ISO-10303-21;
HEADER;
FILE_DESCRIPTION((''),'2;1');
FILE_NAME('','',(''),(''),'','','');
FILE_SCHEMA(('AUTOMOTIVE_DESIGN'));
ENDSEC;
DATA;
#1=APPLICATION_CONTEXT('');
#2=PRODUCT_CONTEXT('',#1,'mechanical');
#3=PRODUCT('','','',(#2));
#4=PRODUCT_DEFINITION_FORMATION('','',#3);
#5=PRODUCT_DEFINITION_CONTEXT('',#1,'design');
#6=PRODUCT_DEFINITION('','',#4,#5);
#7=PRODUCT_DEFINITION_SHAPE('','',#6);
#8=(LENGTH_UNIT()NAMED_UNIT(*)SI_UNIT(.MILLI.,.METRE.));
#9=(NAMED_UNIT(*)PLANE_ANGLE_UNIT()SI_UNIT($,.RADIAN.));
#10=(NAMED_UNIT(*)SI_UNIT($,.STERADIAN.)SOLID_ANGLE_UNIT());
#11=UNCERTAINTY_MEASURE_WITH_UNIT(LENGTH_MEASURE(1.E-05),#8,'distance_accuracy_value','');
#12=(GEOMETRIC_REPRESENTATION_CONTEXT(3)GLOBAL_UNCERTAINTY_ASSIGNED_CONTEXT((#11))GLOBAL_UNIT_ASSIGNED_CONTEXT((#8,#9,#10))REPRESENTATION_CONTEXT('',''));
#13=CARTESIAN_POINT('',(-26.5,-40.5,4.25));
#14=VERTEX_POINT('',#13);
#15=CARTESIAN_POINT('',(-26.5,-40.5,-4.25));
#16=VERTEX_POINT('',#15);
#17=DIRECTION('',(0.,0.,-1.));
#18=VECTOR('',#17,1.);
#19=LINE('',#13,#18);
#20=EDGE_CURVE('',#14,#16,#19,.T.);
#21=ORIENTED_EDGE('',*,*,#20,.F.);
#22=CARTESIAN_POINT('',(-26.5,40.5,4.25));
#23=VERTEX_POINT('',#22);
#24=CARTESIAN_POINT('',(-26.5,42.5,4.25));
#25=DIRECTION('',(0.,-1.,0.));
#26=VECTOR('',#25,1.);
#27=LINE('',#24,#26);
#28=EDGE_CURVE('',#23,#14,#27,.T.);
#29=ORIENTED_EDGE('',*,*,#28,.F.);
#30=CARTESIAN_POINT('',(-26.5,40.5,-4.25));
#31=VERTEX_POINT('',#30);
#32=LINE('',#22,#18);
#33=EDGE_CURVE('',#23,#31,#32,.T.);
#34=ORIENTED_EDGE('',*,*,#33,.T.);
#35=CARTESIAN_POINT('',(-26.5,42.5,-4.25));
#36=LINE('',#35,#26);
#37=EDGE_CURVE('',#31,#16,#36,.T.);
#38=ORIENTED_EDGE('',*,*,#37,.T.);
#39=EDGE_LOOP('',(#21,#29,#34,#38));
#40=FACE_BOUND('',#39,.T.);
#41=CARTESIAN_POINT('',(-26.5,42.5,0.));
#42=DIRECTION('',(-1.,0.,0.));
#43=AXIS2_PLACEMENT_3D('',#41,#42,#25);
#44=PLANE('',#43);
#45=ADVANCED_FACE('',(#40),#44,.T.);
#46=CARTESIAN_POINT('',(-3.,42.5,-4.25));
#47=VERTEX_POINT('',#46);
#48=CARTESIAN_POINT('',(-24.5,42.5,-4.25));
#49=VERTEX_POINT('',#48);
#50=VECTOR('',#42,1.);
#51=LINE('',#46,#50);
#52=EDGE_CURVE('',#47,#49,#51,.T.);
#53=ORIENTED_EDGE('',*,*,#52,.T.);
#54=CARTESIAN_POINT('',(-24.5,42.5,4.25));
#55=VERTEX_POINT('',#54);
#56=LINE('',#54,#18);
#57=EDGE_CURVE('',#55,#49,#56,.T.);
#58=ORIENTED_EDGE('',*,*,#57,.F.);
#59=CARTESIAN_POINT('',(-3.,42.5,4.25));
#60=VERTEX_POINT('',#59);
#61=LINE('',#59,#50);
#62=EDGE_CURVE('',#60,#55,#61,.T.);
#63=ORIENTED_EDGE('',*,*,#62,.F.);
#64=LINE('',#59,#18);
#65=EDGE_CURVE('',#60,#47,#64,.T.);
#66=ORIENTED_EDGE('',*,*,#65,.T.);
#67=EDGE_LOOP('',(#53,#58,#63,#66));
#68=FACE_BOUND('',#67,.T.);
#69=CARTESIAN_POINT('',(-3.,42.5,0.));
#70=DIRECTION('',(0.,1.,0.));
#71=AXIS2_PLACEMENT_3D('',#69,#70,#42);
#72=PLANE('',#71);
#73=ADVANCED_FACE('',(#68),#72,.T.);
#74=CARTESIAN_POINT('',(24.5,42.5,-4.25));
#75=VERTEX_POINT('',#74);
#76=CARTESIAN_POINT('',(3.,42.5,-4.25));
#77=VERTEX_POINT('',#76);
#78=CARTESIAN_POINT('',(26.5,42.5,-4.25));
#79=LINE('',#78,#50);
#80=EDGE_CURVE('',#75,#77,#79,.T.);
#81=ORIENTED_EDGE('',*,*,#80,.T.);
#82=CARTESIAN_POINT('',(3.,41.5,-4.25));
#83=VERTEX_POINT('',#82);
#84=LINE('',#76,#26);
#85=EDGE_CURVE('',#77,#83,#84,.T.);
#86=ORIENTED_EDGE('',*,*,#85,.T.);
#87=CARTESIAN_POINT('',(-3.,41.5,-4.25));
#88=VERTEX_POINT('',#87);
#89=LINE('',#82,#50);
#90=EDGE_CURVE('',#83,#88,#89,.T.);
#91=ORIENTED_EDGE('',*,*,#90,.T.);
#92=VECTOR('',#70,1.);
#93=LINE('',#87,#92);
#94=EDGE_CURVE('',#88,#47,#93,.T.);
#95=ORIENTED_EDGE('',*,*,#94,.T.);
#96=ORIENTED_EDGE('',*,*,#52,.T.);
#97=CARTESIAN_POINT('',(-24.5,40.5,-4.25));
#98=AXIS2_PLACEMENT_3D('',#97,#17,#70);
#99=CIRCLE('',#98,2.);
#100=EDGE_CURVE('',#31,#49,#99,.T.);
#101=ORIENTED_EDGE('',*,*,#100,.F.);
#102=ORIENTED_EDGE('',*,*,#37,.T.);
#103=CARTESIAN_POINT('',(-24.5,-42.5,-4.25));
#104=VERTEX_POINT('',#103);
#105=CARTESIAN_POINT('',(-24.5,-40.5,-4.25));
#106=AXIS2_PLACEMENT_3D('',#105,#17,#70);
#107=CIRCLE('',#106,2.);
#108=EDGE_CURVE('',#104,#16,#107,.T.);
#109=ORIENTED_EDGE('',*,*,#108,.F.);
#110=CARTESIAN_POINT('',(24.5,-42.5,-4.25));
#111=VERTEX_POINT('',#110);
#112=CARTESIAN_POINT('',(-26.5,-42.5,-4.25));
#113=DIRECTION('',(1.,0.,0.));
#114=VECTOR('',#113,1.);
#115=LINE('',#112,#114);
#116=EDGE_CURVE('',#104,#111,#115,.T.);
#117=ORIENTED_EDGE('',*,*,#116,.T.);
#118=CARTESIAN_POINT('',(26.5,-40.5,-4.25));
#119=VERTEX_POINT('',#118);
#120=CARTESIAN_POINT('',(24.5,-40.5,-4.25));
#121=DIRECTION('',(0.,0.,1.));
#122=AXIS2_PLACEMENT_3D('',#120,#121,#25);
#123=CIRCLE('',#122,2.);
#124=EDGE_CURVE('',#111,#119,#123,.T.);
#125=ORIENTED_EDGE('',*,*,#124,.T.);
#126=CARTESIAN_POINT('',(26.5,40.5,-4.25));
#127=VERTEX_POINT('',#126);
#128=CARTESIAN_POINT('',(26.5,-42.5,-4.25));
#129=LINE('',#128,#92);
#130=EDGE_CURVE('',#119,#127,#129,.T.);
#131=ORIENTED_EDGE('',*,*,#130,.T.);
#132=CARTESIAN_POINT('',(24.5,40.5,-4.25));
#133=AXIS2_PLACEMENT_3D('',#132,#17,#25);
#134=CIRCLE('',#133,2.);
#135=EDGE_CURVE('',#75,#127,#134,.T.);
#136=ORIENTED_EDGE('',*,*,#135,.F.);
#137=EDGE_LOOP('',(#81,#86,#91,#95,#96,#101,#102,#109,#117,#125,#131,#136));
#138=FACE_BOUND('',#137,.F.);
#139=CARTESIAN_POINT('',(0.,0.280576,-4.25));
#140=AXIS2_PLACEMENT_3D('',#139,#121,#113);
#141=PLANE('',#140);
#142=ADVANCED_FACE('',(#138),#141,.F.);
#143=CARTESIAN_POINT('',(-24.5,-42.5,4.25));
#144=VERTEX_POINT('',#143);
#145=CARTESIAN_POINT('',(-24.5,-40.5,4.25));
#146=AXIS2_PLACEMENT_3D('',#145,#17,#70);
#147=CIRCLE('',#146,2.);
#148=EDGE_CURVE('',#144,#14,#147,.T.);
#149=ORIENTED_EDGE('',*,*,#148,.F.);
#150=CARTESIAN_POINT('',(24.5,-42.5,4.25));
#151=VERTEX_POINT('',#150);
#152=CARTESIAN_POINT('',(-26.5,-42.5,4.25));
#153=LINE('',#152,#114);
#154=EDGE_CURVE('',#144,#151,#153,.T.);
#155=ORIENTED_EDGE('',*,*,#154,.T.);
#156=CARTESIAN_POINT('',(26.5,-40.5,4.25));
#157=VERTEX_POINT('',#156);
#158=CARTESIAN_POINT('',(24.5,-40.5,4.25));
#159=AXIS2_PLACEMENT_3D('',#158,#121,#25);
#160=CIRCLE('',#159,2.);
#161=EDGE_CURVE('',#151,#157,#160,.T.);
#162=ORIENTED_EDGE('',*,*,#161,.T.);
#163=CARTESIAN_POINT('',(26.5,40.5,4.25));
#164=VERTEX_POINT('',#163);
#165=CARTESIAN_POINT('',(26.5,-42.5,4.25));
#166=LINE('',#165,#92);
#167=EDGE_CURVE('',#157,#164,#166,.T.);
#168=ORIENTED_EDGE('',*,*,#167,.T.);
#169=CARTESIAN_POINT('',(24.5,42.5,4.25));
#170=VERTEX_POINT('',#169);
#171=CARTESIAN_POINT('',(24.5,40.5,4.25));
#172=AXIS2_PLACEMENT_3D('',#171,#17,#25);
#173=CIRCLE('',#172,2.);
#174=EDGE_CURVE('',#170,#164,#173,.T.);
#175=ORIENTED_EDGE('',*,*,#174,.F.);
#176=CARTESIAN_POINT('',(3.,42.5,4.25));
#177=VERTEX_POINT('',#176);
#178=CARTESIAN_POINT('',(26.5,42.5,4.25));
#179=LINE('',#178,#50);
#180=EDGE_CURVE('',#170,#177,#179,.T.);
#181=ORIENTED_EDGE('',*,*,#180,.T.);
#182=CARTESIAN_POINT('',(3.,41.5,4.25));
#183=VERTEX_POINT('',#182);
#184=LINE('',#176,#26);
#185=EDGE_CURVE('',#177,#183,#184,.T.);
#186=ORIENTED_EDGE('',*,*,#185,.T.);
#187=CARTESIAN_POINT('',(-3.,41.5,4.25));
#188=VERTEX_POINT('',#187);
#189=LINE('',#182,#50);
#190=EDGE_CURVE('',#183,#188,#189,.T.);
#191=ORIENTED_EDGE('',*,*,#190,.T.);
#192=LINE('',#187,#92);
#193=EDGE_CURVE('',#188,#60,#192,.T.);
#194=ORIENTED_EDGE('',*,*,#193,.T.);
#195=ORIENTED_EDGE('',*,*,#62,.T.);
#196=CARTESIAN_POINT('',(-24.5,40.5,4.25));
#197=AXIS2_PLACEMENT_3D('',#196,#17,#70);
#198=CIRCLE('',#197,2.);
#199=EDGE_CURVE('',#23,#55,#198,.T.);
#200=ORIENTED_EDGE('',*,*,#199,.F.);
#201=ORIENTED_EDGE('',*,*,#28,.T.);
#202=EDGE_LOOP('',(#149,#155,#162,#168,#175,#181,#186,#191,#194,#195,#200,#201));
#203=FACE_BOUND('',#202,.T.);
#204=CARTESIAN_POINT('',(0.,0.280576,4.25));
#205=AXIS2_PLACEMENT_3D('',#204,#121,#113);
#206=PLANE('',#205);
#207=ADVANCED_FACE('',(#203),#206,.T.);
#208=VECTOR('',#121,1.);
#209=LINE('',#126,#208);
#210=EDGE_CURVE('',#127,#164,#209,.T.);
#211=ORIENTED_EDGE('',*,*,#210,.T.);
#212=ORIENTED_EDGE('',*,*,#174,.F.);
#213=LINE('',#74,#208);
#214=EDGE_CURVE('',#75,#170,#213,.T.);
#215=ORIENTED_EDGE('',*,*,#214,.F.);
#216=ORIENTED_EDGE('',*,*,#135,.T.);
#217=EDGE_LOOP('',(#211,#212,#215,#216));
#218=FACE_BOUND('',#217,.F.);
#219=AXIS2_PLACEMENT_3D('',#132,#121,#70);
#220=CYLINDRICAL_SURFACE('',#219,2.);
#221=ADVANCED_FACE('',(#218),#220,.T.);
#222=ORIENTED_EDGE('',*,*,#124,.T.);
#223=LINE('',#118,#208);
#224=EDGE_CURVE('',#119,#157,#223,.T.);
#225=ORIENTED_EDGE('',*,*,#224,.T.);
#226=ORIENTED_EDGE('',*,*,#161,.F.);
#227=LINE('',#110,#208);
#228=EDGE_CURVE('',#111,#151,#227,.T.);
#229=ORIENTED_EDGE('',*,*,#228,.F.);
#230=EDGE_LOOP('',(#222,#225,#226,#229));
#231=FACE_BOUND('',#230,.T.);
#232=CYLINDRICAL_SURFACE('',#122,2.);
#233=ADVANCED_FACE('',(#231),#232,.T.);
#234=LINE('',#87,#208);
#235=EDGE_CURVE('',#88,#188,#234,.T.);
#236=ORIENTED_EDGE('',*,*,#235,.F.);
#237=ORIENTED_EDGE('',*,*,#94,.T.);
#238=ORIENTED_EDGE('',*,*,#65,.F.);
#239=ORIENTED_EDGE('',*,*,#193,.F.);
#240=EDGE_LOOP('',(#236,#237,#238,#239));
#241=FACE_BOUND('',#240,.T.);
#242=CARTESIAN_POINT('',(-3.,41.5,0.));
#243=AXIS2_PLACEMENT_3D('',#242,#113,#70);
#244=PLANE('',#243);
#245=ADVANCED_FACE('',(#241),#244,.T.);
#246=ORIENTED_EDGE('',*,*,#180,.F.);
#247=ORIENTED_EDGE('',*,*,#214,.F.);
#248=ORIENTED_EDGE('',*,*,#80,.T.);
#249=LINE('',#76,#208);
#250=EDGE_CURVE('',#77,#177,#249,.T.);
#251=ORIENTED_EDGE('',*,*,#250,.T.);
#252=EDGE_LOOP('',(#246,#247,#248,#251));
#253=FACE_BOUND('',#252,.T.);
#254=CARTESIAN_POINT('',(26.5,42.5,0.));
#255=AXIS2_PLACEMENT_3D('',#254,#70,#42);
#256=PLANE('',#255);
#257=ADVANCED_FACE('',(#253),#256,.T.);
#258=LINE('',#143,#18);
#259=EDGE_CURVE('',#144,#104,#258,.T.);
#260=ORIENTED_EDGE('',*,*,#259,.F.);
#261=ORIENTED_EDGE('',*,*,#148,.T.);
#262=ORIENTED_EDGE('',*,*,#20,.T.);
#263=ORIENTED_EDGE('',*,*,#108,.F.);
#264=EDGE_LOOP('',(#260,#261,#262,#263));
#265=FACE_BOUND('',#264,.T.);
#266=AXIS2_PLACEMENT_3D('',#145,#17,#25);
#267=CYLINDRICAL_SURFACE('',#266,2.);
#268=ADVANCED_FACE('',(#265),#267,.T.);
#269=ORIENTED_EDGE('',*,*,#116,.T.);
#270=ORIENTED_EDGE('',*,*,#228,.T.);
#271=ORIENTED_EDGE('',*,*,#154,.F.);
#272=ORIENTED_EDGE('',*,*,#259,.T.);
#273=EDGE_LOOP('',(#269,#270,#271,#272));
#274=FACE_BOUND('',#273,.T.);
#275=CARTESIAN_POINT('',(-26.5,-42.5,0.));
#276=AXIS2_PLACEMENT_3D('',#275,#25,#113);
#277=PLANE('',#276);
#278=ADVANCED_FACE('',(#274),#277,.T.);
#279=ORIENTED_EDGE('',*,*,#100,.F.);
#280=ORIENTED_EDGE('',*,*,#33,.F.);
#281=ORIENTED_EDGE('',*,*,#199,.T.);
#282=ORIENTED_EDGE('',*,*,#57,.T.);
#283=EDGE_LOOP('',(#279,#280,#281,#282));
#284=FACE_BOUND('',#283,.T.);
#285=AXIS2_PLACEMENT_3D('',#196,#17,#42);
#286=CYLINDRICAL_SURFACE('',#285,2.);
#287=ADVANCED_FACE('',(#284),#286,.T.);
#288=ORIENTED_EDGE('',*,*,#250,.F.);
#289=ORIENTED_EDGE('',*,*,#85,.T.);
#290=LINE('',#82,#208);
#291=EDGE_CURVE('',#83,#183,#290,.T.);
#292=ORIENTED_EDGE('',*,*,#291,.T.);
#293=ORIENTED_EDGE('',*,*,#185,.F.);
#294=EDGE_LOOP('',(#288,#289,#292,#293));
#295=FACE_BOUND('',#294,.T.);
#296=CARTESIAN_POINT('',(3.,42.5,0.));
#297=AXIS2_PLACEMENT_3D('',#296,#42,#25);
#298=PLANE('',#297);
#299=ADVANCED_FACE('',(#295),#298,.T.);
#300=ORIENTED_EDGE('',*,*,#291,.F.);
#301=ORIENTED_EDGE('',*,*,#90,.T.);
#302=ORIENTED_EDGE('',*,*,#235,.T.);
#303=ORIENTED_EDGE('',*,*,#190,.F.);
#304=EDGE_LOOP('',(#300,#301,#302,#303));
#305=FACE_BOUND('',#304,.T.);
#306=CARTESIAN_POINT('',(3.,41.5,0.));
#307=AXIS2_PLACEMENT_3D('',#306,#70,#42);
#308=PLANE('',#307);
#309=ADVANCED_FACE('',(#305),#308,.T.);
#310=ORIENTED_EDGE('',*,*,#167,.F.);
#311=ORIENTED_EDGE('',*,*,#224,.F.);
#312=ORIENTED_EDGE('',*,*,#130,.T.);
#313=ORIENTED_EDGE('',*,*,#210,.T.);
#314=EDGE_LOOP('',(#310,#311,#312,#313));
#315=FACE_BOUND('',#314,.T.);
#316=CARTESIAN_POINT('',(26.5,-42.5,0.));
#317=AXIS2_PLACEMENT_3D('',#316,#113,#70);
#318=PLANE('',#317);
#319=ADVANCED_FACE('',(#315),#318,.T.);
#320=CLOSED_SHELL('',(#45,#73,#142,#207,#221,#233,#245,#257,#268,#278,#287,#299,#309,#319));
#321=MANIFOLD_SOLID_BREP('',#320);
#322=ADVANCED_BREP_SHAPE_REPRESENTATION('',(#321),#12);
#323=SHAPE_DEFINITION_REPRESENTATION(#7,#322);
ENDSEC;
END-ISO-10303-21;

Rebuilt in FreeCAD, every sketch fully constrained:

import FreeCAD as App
import Part
import Sketcher
from FreeCAD import Vector
Q = App.Units.Quantity


def edges_at(feature, points):
    """Names of the edges that pass closest to the given points."""
    edges = feature.Shape.Edges
    near = lambda p: min(range(len(edges)), key=lambda i: edges[i].distToShape(Part.Vertex(*p))[0])
    return sorted({f"Edge{near(p) + 1}" for p in points})

doc = App.newDocument("Part")
params = doc.addObject("Spreadsheet::Sheet", "Params")
for row, (alias, value) in enumerate([
    ("sketch1_width", "53 mm"),
    ("sketch1_width2", "6 mm"),
    ("sketch1_height", "85 mm"),
    ("sketch1_height2", "1 mm"),
    ("pad1_length", "8.5 mm"),
    ("fillet_radius", "2 mm"),
], start=1):
    params.set(f"A{row}", alias)
    params.set(f"B{row}", "=" + value)
    params.setAlias(f"B{row}", alias)

body = doc.addObject("PartDesign::Body", "Body")

# Sketch on XY plane
sketch1 = doc.addObject("Sketcher::SketchObject", "Sketch")
body.addObject(sketch1)
sketch1.AttachmentSupport = (doc.XY_Plane, [""])
sketch1.MapMode = "FlatFace"
sketch1.addGeometry([
    Part.LineSegment(Vector(-26.5, -42.5, 0), Vector(26.5, -42.5, 0)),  # 0
    Part.LineSegment(Vector(26.5, -42.5, 0), Vector(26.5, 42.5, 0)),  # 1
    Part.LineSegment(Vector(26.5, 42.5, 0), Vector(3, 42.5, 0)),  # 2
    Part.LineSegment(Vector(3, 42.5, 0), Vector(3, 41.5, 0)),  # 3
    Part.LineSegment(Vector(3, 41.5, 0), Vector(-3, 41.5, 0)),  # 4
    Part.LineSegment(Vector(-3, 41.5, 0), Vector(-3, 42.5, 0)),  # 5
    Part.LineSegment(Vector(-3, 42.5, 0), Vector(-26.5, 42.5, 0)),  # 6
    Part.LineSegment(Vector(-26.5, 42.5, 0), Vector(-26.5, -42.5, 0)),  # 7
], False)
sketch1.addConstraint([
    Sketcher.Constraint("Coincident", 0, 2, 1, 1),
    Sketcher.Constraint("Coincident", 1, 2, 2, 1),
    Sketcher.Constraint("Coincident", 2, 2, 3, 1),
    Sketcher.Constraint("Coincident", 3, 2, 4, 1),
    Sketcher.Constraint("Coincident", 4, 2, 5, 1),
    Sketcher.Constraint("Coincident", 5, 2, 6, 1),
    Sketcher.Constraint("Coincident", 6, 2, 7, 1),
    Sketcher.Constraint("Coincident", 7, 2, 0, 1),
    Sketcher.Constraint("Horizontal", 0),
    Sketcher.Constraint("Vertical", 1),
    Sketcher.Constraint("Horizontal", 2),
    Sketcher.Constraint("Vertical", 3),
    Sketcher.Constraint("Horizontal", 4),
    Sketcher.Constraint("Vertical", 5),
    Sketcher.Constraint("Horizontal", 6),
    Sketcher.Constraint("Vertical", 7),
    Sketcher.Constraint("Symmetric", 0, 2, 6, 2, -1, 1),
    Sketcher.Constraint("Symmetric", 2, 2, 5, 2, -2),
    Sketcher.Constraint("DistanceX", 0, 1, 0, 2, Q("53 mm")),
    Sketcher.Constraint("DistanceX", 4, 2, 4, 1, Q("6 mm")),
    Sketcher.Constraint("DistanceY", 1, 1, 1, 2, Q("85 mm")),
    Sketcher.Constraint("DistanceY", 3, 2, 3, 1, Q("1 mm")),
])
sketch1.setExpression("Constraints[18]", "Params.sketch1_width")
sketch1.setExpression("Constraints[19]", "Params.sketch1_width2")
sketch1.setExpression("Constraints[20]", "Params.sketch1_height")
sketch1.setExpression("Constraints[21]", "Params.sketch1_height2")
pad1 = doc.addObject("PartDesign::Pad", "Pad")
body.addObject(pad1)
pad1.Profile = sketch1
pad1.setExpression("Length", "Params.pad1_length")
pad1.Midplane = True
doc.recompute()

fillet = doc.addObject("PartDesign::Fillet", "Fillet")
body.addObject(fillet)
fillet.Base = (pad1, edges_at(pad1, [
    (-26.5, -42.5, 0),
    (26.5, -42.5, 0),
    (26.5, 42.5, 0),
    (-26.5, 42.5, 0),
]))
fillet.setExpression("Radius", "Params.fillet_radius")

doc.recompute()
